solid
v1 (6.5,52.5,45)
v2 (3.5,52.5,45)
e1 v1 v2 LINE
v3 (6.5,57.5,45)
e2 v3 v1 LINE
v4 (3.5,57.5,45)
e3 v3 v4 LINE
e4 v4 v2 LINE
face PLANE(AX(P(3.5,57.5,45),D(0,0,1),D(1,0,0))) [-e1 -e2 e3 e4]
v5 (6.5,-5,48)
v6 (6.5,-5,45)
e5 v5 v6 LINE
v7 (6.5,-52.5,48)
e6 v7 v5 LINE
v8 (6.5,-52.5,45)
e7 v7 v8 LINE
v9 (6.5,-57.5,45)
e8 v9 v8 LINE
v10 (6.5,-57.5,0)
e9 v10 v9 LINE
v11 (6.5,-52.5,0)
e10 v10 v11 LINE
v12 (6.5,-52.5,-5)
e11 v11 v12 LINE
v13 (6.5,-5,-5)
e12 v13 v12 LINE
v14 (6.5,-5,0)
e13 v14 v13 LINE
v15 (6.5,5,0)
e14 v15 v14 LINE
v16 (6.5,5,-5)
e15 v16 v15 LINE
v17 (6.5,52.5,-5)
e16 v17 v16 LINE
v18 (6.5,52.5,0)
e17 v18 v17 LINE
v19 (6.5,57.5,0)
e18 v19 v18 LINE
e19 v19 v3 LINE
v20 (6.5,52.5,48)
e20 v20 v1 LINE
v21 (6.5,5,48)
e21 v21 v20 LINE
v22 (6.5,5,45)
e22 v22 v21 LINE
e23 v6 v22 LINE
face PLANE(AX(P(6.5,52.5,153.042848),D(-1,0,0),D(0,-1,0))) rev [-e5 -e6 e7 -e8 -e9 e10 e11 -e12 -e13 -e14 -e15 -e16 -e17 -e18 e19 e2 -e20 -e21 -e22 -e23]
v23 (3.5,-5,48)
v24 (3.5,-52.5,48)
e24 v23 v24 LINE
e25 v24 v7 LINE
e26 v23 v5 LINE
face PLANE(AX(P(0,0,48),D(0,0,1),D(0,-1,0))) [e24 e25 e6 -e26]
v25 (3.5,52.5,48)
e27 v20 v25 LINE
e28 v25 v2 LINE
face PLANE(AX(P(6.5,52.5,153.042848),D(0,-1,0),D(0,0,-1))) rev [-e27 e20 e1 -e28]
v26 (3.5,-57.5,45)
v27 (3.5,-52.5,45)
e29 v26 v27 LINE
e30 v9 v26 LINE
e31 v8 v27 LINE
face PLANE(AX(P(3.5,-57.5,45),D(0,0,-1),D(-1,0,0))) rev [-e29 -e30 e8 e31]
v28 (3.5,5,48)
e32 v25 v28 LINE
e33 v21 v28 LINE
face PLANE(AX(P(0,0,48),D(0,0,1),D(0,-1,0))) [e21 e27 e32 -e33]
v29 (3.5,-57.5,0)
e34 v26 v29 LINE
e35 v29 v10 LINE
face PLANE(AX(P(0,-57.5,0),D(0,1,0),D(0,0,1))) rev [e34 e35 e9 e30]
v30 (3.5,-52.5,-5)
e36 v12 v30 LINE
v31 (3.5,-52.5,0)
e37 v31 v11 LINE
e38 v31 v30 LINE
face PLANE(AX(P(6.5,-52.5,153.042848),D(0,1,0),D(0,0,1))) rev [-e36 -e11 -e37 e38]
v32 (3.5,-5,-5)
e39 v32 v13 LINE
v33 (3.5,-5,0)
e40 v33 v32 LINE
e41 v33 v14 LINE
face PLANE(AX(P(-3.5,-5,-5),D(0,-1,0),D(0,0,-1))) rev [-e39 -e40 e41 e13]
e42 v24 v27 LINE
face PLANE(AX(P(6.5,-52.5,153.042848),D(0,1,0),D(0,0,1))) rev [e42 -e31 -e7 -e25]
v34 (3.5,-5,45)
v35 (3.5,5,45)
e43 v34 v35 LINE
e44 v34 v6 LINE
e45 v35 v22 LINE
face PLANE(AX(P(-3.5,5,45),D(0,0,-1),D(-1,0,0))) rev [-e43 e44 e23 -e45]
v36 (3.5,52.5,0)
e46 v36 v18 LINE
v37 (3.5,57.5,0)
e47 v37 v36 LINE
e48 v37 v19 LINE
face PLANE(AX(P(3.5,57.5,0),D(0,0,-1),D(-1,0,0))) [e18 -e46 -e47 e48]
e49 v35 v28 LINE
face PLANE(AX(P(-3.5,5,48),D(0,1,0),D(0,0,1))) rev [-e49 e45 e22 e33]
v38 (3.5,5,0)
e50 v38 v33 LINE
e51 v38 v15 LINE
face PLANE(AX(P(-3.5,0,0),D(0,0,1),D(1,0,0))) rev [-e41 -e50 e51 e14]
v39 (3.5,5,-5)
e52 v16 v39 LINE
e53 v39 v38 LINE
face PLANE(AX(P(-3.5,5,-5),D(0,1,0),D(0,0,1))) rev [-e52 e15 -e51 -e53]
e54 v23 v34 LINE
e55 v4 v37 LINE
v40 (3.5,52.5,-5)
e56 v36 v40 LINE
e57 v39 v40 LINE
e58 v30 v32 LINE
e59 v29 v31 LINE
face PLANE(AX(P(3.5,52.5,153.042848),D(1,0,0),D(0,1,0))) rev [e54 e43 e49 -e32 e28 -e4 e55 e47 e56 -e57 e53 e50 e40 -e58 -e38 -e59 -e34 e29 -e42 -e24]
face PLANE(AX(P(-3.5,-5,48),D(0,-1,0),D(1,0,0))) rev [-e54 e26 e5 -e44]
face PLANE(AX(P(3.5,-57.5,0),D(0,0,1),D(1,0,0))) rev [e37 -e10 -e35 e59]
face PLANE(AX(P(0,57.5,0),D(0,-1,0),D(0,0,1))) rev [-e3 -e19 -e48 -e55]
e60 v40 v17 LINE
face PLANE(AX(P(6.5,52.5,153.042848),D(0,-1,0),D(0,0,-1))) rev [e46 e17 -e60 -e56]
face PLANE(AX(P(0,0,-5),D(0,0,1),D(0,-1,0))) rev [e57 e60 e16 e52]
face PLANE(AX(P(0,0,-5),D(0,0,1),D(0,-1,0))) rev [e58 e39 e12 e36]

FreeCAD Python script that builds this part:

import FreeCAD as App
import Part
import Sketcher
from FreeCAD import Vector
Q = App.Units.Quantity


def add_polygon(sketch, points):
    """Adds a closed chain of lines whose ends are joined by coincident constraints."""
    first, n = sketch.GeometryCount, len(points)
    for a, b in zip(points, points[1:] + points[:1]):
        sketch.addGeometry(Part.LineSegment(App.Vector(*a, 0), App.Vector(*b, 0)), False)
    for i in range(n):
        sketch.addConstraint(Sketcher.Constraint("Coincident", first + i, 2, first + (i + 1) % n, 1))

doc = App.newDocument("Part")
body = doc.addObject("PartDesign::Body", "Body")

# Sketch on XY plane
sketch1 = body.newObject("Sketcher::SketchObject", "Sketch")
sketch1.AttachmentSupport = (doc.getObject("XY_Plane"), [""])
sketch1.MapMode = "FlatFace"
add_polygon(sketch1, [(3.5, 52.5), (3.5, -52.5), (6.5, -52.5), (6.5, 52.5)])  # lines 0-3
sketch1.addConstraint(Sketcher.Constraint("Vertical", 0))
sketch1.addConstraint(Sketcher.Constraint("Horizontal", 1))
sketch1.addConstraint(Sketcher.Constraint("Vertical", 2))
sketch1.addConstraint(Sketcher.Constraint("Horizontal", 3))
sketch1.addConstraint(Sketcher.Constraint("DistanceX", 1, 1, 1, 2, Q("3 mm")))
sketch1.addConstraint(Sketcher.Constraint("DistanceY", 0, 2, 0, 1, Q("105 mm")))
sketch1.addConstraint(Sketcher.Constraint("DistanceX", -1, 1, 0, 2, Q("3.5 mm")))
sketch1.addConstraint(Sketcher.Constraint("DistanceY", 0, 2, -1, 1, Q("52.5 mm")))
pad1 = body.newObject("PartDesign::Pad", "Pad")
pad1.Profile = sketch1
pad1.Type = "TwoLengths"
pad1.Length = 48
pad1.Length2 = 5

# Sketch on YZ plane
sketch2 = body.newObject("Sketcher::SketchObject", "Sketch001")
sketch2.AttachmentSupport = (doc.getObject("YZ_Plane"), [""])
sketch2.MapMode = "FlatFace"
sketch2.AttachmentOffset = App.Placement(Vector(0, 0, 6.5), App.Rotation())
add_polygon(sketch2, [(-5, 48), (-5, 45), (5, 45), (5, 48)])  # lines 0-3
add_polygon(sketch2, [(-5, 0), (-5, -5), (5, -5), (5, 0)])  # lines 4-7
sketch2.addConstraint(Sketcher.Constraint("Vertical", 0))
sketch2.addConstraint(Sketcher.Constraint("Horizontal", 1))
sketch2.addConstraint(Sketcher.Constraint("Vertical", 2))
sketch2.addConstraint(Sketcher.Constraint("Horizontal", 3))
sketch2.addConstraint(Sketcher.Constraint("Vertical", 4))
sketch2.addConstraint(Sketcher.Constraint("Horizontal", 5))
sketch2.addConstraint(Sketcher.Constraint("Vertical", 6))
sketch2.addConstraint(Sketcher.Constraint("Horizontal", 7))
sketch2.addConstraint(Sketcher.Constraint("Symmetric", 6, 2, 7, 2, -1, 1))
sketch2.addConstraint(Sketcher.Constraint("Vertical", 3, 2, 4, 2))
sketch2.addConstraint(Sketcher.Constraint("Vertical", 2, 2, 5, 2))
sketch2.addConstraint(Sketcher.Constraint("DistanceX", 1, 1, 1, 2, Q("10 mm")))
sketch2.addConstraint(Sketcher.Constraint("DistanceY", 0, 2, 0, 1, Q("3 mm")))
sketch2.addConstraint(Sketcher.Constraint("DistanceY", 4, 2, 4, 1, Q("5 mm")))
sketch2.addConstraint(Sketcher.Constraint("DistanceY", -1, 1, 0, 2, Q("45 mm")))
pocket1 = body.newObject("PartDesign::Pocket", "Pocket")
pocket1.Profile = sketch2
pocket1.Length = 10

# Sketch on XZ plane
sketch3 = body.newObject("Sketcher::SketchObject", "Sketch002")
sketch3.AttachmentSupport = (doc.getObject("XZ_Plane"), [""])
sketch3.MapMode = "FlatFace"
sketch3.AttachmentOffset = App.Placement(Vector(0, 0, 52.5), App.Rotation())
add_polygon(sketch3, [(3.5, 45), (3.5, 0), (6.5, 0), (6.5, 45)])  # lines 0-3
sketch3.addConstraint(Sketcher.Constraint("Vertical", 0))
sketch3.addConstraint(Sketcher.Constraint("Horizontal", 1))
sketch3.addConstraint(Sketcher.Constraint("Vertical", 2))
sketch3.addConstraint(Sketcher.Constraint("Horizontal", 3))
sketch3.addConstraint(Sketcher.Constraint("PointOnObject", 0, 2, -1))
sketch3.addConstraint(Sketcher.Constraint("DistanceX", 1, 1, 1, 2, Q("3 mm")))
sketch3.addConstraint(Sketcher.Constraint("DistanceY", 0, 2, 0, 1, Q("45 mm")))
sketch3.addConstraint(Sketcher.Constraint("DistanceX", -1, 1, 0, 2, Q("3.5 mm")))
pad2 = body.newObject("PartDesign::Pad", "Pad001")
pad2.Profile = sketch3
pad2.Length = 5
doc.recompute()

mirrored = body.newObject("PartDesign::Mirrored", "Mirrored")
mirrored.Originals = [pad2]
mirrored.MirrorPlane = (doc.getObject("XZ_Plane"), [""])
body.Tip = mirrored

doc.recompute()
